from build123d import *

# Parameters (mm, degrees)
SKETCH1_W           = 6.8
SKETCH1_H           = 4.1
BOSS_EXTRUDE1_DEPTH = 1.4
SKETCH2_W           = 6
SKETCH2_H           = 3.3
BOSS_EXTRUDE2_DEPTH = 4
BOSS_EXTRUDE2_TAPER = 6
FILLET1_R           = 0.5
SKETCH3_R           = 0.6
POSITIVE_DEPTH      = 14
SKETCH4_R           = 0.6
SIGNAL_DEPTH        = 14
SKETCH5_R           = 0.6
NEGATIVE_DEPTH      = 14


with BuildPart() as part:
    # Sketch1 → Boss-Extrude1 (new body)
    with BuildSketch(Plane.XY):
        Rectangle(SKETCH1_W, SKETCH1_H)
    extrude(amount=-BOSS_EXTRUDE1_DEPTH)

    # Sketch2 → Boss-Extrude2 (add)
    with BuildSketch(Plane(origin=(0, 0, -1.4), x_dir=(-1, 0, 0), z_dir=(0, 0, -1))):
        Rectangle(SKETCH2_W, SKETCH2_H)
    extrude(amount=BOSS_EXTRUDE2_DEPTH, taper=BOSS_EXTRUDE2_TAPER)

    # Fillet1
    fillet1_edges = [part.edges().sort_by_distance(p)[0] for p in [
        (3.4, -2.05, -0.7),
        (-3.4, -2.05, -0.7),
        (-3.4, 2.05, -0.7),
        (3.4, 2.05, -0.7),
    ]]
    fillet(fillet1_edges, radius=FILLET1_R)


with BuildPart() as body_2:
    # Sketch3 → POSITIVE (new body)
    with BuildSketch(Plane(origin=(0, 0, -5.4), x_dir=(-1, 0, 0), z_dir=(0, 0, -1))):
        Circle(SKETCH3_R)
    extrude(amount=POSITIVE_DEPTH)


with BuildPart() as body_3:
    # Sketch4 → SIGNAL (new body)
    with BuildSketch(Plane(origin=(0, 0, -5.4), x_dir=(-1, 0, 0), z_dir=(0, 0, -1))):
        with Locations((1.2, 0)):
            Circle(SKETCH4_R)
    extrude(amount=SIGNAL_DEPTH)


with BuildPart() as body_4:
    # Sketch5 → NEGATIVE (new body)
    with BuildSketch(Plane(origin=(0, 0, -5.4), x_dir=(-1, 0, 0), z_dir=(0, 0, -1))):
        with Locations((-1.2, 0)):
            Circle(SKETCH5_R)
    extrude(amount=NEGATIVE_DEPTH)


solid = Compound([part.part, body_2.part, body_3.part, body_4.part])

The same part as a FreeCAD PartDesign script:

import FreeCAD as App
import Part
import Sketcher

V = App.Vector
Q = App.Units.Quantity


def edges_at(feature, points):
    """Names of the edges that pass closest to the given points."""
    edges = feature.Shape.Edges
    near = lambda p: min(range(len(edges)), key=lambda i: edges[i].distToShape(Part.Vertex(*p))[0])
    return sorted({f"Edge{near(p) + 1}" for p in points})


def add_polygon(sketch, points):
    """Adds a closed chain of lines whose ends are joined by coincident constraints."""
    first, n = sketch.GeometryCount, len(points)
    for a, b in zip(points, points[1:] + points[:1]):
        sketch.addGeometry(Part.LineSegment(App.Vector(*a, 0), App.Vector(*b, 0)), False)
    for i in range(n):
        sketch.addConstraint(Sketcher.Constraint("Coincident", first + i, 2, first + (i + 1) % n, 1))

doc = App.newDocument("Part")
body = doc.addObject("PartDesign::Body", "Body")

sketch1 = body.newObject("Sketcher::SketchObject", "Sketch")
sketch1.AttachmentSupport = (doc.getObject("XY_Plane"), [""])
sketch1.MapMode = "FlatFace"
add_polygon(sketch1, [(-3.4, 2.05), (-3.4, -2.05), (3.4, -2.05), (3.4, 2.05)])
sketch1.addConstraint([
    Sketcher.Constraint("Vertical", 0),
    Sketcher.Constraint("Horizontal", 1),
    Sketcher.Constraint("Vertical", 2),
    Sketcher.Constraint("Horizontal", 3),
    Sketcher.Constraint("Symmetric", 0, 2, 2, 2, -1, 1),
    Sketcher.Constraint("DistanceX", 1, 1, 1, 2, Q("6.8 mm")),
    Sketcher.Constraint("DistanceY", 0, 2, 0, 1, Q("4.1 mm")),
])
pad1 = body.newObject("PartDesign::Pad", "Pad")
pad1.Profile = sketch1
pad1.Length = 1.4
pad1.Reversed = True

sketch2 = body.newObject("Sketcher::SketchObject", "Sketch001")
sketch2.AttachmentSupport = (doc.getObject("XY_Plane"), [""])
sketch2.MapMode = "FlatFace"
sketch2.AttachmentOffset = App.Placement(V(0, 0, -1.4), App.Rotation())
add_polygon(sketch2, [(3, 1.65), (3, -1.65), (-3, -1.65), (-3, 1.65)])
sketch2.addConstraint([
    Sketcher.Constraint("Vertical", 0),
    Sketcher.Constraint("Horizontal", 1),
    Sketcher.Constraint("Vertical", 2),
    Sketcher.Constraint("Horizontal", 3),
    Sketcher.Constraint("Symmetric", 0, 2, 2, 2, -1, 1),
    Sketcher.Constraint("DistanceX", 1, 2, 1, 1, Q("6 mm")),
    Sketcher.Constraint("DistanceY", 0, 2, 0, 1, Q("3.3 mm")),
])
pad2 = body.newObject("PartDesign::Pad", "Pad001")
pad2.Profile = sketch2
pad2.Length = 4
pad2.Reversed = True
pad2.TaperAngle = -6
doc.recompute()

fillet = body.newObject("PartDesign::Fillet", "Fillet")
fillet.Base = (pad2, edges_at(pad2, [
    (3.4, -2.05, -0.7),
    (-3.4, -2.05, -0.7),
    (-3.4, 2.05, -0.7),
    (3.4, 2.05, -0.7),
]))
fillet.Radius = 0.5
body2 = doc.addObject("PartDesign::Body", "Body001")

sketch3 = body2.newObject("Sketcher::SketchObject", "Sketch002")
sketch3.AttachmentSupport = (doc.getObject("XY_Plane001"), [""])
sketch3.MapMode = "FlatFace"
sketch3.AttachmentOffset = App.Placement(V(0, 0, -5.4), App.Rotation())
sketch3.addGeometry(Part.Circle(V(0, 0, 0), V(0, 0, 1), 0.6), False)
sketch3.addConstraint([
    Sketcher.Constraint("Coincident", 0, 3, -1, 1),
    Sketcher.Constraint("Diameter", 0, Q("1.2 mm")),
])
pad3 = body2.newObject("PartDesign::Pad", "Pad002")
pad3.Profile = sketch3
pad3.Length = 14
pad3.Reversed = True
body3 = doc.addObject("PartDesign::Body", "Body002")

sketch4 = body3.newObject("Sketcher::SketchObject", "Sketch003")
sketch4.AttachmentSupport = (doc.getObject("XY_Plane002"), [""])
sketch4.MapMode = "FlatFace"
sketch4.AttachmentOffset = App.Placement(V(0, 0, -5.4), App.Rotation())
sketch4.addGeometry(Part.Circle(V(-1.2, 0, 0), V(0, 0, 1), 0.6), False)
sketch4.addConstraint([
    Sketcher.Constraint("PointOnObject", 0, 3, -1),
    Sketcher.Constraint("Diameter", 0, Q("1.2 mm")),
    Sketcher.Constraint("DistanceX", 0, 3, -1, 1, Q("1.2 mm")),
])
pad4 = body3.newObject("PartDesign::Pad", "Pad003")
pad4.Profile = sketch4
pad4.Length = 14
pad4.Reversed = True
body4 = doc.addObject("PartDesign::Body", "Body003")

sketch5 = body4.newObject("Sketcher::SketchObject", "Sketch004")
sketch5.AttachmentSupport = (doc.getObject("XY_Plane003"), [""])
sketch5.MapMode = "FlatFace"
sketch5.AttachmentOffset = App.Placement(V(0, 0, -5.4), App.Rotation())
sketch5.addGeometry(Part.Circle(V(1.2, 0, 0), V(0, 0, 1), 0.6), False)
sketch5.addConstraint([
    Sketcher.Constraint("PointOnObject", 0, 3, -1),
    Sketcher.Constraint("Diameter", 0, Q("1.2 mm")),
    Sketcher.Constraint("DistanceX", -1, 1, 0, 3, Q("1.2 mm")),
])
pad5 = body4.newObject("PartDesign::Pad", "Pad004")
pad5.Profile = sketch5
pad5.Length = 14
pad5.Reversed = True

doc.recompute()
